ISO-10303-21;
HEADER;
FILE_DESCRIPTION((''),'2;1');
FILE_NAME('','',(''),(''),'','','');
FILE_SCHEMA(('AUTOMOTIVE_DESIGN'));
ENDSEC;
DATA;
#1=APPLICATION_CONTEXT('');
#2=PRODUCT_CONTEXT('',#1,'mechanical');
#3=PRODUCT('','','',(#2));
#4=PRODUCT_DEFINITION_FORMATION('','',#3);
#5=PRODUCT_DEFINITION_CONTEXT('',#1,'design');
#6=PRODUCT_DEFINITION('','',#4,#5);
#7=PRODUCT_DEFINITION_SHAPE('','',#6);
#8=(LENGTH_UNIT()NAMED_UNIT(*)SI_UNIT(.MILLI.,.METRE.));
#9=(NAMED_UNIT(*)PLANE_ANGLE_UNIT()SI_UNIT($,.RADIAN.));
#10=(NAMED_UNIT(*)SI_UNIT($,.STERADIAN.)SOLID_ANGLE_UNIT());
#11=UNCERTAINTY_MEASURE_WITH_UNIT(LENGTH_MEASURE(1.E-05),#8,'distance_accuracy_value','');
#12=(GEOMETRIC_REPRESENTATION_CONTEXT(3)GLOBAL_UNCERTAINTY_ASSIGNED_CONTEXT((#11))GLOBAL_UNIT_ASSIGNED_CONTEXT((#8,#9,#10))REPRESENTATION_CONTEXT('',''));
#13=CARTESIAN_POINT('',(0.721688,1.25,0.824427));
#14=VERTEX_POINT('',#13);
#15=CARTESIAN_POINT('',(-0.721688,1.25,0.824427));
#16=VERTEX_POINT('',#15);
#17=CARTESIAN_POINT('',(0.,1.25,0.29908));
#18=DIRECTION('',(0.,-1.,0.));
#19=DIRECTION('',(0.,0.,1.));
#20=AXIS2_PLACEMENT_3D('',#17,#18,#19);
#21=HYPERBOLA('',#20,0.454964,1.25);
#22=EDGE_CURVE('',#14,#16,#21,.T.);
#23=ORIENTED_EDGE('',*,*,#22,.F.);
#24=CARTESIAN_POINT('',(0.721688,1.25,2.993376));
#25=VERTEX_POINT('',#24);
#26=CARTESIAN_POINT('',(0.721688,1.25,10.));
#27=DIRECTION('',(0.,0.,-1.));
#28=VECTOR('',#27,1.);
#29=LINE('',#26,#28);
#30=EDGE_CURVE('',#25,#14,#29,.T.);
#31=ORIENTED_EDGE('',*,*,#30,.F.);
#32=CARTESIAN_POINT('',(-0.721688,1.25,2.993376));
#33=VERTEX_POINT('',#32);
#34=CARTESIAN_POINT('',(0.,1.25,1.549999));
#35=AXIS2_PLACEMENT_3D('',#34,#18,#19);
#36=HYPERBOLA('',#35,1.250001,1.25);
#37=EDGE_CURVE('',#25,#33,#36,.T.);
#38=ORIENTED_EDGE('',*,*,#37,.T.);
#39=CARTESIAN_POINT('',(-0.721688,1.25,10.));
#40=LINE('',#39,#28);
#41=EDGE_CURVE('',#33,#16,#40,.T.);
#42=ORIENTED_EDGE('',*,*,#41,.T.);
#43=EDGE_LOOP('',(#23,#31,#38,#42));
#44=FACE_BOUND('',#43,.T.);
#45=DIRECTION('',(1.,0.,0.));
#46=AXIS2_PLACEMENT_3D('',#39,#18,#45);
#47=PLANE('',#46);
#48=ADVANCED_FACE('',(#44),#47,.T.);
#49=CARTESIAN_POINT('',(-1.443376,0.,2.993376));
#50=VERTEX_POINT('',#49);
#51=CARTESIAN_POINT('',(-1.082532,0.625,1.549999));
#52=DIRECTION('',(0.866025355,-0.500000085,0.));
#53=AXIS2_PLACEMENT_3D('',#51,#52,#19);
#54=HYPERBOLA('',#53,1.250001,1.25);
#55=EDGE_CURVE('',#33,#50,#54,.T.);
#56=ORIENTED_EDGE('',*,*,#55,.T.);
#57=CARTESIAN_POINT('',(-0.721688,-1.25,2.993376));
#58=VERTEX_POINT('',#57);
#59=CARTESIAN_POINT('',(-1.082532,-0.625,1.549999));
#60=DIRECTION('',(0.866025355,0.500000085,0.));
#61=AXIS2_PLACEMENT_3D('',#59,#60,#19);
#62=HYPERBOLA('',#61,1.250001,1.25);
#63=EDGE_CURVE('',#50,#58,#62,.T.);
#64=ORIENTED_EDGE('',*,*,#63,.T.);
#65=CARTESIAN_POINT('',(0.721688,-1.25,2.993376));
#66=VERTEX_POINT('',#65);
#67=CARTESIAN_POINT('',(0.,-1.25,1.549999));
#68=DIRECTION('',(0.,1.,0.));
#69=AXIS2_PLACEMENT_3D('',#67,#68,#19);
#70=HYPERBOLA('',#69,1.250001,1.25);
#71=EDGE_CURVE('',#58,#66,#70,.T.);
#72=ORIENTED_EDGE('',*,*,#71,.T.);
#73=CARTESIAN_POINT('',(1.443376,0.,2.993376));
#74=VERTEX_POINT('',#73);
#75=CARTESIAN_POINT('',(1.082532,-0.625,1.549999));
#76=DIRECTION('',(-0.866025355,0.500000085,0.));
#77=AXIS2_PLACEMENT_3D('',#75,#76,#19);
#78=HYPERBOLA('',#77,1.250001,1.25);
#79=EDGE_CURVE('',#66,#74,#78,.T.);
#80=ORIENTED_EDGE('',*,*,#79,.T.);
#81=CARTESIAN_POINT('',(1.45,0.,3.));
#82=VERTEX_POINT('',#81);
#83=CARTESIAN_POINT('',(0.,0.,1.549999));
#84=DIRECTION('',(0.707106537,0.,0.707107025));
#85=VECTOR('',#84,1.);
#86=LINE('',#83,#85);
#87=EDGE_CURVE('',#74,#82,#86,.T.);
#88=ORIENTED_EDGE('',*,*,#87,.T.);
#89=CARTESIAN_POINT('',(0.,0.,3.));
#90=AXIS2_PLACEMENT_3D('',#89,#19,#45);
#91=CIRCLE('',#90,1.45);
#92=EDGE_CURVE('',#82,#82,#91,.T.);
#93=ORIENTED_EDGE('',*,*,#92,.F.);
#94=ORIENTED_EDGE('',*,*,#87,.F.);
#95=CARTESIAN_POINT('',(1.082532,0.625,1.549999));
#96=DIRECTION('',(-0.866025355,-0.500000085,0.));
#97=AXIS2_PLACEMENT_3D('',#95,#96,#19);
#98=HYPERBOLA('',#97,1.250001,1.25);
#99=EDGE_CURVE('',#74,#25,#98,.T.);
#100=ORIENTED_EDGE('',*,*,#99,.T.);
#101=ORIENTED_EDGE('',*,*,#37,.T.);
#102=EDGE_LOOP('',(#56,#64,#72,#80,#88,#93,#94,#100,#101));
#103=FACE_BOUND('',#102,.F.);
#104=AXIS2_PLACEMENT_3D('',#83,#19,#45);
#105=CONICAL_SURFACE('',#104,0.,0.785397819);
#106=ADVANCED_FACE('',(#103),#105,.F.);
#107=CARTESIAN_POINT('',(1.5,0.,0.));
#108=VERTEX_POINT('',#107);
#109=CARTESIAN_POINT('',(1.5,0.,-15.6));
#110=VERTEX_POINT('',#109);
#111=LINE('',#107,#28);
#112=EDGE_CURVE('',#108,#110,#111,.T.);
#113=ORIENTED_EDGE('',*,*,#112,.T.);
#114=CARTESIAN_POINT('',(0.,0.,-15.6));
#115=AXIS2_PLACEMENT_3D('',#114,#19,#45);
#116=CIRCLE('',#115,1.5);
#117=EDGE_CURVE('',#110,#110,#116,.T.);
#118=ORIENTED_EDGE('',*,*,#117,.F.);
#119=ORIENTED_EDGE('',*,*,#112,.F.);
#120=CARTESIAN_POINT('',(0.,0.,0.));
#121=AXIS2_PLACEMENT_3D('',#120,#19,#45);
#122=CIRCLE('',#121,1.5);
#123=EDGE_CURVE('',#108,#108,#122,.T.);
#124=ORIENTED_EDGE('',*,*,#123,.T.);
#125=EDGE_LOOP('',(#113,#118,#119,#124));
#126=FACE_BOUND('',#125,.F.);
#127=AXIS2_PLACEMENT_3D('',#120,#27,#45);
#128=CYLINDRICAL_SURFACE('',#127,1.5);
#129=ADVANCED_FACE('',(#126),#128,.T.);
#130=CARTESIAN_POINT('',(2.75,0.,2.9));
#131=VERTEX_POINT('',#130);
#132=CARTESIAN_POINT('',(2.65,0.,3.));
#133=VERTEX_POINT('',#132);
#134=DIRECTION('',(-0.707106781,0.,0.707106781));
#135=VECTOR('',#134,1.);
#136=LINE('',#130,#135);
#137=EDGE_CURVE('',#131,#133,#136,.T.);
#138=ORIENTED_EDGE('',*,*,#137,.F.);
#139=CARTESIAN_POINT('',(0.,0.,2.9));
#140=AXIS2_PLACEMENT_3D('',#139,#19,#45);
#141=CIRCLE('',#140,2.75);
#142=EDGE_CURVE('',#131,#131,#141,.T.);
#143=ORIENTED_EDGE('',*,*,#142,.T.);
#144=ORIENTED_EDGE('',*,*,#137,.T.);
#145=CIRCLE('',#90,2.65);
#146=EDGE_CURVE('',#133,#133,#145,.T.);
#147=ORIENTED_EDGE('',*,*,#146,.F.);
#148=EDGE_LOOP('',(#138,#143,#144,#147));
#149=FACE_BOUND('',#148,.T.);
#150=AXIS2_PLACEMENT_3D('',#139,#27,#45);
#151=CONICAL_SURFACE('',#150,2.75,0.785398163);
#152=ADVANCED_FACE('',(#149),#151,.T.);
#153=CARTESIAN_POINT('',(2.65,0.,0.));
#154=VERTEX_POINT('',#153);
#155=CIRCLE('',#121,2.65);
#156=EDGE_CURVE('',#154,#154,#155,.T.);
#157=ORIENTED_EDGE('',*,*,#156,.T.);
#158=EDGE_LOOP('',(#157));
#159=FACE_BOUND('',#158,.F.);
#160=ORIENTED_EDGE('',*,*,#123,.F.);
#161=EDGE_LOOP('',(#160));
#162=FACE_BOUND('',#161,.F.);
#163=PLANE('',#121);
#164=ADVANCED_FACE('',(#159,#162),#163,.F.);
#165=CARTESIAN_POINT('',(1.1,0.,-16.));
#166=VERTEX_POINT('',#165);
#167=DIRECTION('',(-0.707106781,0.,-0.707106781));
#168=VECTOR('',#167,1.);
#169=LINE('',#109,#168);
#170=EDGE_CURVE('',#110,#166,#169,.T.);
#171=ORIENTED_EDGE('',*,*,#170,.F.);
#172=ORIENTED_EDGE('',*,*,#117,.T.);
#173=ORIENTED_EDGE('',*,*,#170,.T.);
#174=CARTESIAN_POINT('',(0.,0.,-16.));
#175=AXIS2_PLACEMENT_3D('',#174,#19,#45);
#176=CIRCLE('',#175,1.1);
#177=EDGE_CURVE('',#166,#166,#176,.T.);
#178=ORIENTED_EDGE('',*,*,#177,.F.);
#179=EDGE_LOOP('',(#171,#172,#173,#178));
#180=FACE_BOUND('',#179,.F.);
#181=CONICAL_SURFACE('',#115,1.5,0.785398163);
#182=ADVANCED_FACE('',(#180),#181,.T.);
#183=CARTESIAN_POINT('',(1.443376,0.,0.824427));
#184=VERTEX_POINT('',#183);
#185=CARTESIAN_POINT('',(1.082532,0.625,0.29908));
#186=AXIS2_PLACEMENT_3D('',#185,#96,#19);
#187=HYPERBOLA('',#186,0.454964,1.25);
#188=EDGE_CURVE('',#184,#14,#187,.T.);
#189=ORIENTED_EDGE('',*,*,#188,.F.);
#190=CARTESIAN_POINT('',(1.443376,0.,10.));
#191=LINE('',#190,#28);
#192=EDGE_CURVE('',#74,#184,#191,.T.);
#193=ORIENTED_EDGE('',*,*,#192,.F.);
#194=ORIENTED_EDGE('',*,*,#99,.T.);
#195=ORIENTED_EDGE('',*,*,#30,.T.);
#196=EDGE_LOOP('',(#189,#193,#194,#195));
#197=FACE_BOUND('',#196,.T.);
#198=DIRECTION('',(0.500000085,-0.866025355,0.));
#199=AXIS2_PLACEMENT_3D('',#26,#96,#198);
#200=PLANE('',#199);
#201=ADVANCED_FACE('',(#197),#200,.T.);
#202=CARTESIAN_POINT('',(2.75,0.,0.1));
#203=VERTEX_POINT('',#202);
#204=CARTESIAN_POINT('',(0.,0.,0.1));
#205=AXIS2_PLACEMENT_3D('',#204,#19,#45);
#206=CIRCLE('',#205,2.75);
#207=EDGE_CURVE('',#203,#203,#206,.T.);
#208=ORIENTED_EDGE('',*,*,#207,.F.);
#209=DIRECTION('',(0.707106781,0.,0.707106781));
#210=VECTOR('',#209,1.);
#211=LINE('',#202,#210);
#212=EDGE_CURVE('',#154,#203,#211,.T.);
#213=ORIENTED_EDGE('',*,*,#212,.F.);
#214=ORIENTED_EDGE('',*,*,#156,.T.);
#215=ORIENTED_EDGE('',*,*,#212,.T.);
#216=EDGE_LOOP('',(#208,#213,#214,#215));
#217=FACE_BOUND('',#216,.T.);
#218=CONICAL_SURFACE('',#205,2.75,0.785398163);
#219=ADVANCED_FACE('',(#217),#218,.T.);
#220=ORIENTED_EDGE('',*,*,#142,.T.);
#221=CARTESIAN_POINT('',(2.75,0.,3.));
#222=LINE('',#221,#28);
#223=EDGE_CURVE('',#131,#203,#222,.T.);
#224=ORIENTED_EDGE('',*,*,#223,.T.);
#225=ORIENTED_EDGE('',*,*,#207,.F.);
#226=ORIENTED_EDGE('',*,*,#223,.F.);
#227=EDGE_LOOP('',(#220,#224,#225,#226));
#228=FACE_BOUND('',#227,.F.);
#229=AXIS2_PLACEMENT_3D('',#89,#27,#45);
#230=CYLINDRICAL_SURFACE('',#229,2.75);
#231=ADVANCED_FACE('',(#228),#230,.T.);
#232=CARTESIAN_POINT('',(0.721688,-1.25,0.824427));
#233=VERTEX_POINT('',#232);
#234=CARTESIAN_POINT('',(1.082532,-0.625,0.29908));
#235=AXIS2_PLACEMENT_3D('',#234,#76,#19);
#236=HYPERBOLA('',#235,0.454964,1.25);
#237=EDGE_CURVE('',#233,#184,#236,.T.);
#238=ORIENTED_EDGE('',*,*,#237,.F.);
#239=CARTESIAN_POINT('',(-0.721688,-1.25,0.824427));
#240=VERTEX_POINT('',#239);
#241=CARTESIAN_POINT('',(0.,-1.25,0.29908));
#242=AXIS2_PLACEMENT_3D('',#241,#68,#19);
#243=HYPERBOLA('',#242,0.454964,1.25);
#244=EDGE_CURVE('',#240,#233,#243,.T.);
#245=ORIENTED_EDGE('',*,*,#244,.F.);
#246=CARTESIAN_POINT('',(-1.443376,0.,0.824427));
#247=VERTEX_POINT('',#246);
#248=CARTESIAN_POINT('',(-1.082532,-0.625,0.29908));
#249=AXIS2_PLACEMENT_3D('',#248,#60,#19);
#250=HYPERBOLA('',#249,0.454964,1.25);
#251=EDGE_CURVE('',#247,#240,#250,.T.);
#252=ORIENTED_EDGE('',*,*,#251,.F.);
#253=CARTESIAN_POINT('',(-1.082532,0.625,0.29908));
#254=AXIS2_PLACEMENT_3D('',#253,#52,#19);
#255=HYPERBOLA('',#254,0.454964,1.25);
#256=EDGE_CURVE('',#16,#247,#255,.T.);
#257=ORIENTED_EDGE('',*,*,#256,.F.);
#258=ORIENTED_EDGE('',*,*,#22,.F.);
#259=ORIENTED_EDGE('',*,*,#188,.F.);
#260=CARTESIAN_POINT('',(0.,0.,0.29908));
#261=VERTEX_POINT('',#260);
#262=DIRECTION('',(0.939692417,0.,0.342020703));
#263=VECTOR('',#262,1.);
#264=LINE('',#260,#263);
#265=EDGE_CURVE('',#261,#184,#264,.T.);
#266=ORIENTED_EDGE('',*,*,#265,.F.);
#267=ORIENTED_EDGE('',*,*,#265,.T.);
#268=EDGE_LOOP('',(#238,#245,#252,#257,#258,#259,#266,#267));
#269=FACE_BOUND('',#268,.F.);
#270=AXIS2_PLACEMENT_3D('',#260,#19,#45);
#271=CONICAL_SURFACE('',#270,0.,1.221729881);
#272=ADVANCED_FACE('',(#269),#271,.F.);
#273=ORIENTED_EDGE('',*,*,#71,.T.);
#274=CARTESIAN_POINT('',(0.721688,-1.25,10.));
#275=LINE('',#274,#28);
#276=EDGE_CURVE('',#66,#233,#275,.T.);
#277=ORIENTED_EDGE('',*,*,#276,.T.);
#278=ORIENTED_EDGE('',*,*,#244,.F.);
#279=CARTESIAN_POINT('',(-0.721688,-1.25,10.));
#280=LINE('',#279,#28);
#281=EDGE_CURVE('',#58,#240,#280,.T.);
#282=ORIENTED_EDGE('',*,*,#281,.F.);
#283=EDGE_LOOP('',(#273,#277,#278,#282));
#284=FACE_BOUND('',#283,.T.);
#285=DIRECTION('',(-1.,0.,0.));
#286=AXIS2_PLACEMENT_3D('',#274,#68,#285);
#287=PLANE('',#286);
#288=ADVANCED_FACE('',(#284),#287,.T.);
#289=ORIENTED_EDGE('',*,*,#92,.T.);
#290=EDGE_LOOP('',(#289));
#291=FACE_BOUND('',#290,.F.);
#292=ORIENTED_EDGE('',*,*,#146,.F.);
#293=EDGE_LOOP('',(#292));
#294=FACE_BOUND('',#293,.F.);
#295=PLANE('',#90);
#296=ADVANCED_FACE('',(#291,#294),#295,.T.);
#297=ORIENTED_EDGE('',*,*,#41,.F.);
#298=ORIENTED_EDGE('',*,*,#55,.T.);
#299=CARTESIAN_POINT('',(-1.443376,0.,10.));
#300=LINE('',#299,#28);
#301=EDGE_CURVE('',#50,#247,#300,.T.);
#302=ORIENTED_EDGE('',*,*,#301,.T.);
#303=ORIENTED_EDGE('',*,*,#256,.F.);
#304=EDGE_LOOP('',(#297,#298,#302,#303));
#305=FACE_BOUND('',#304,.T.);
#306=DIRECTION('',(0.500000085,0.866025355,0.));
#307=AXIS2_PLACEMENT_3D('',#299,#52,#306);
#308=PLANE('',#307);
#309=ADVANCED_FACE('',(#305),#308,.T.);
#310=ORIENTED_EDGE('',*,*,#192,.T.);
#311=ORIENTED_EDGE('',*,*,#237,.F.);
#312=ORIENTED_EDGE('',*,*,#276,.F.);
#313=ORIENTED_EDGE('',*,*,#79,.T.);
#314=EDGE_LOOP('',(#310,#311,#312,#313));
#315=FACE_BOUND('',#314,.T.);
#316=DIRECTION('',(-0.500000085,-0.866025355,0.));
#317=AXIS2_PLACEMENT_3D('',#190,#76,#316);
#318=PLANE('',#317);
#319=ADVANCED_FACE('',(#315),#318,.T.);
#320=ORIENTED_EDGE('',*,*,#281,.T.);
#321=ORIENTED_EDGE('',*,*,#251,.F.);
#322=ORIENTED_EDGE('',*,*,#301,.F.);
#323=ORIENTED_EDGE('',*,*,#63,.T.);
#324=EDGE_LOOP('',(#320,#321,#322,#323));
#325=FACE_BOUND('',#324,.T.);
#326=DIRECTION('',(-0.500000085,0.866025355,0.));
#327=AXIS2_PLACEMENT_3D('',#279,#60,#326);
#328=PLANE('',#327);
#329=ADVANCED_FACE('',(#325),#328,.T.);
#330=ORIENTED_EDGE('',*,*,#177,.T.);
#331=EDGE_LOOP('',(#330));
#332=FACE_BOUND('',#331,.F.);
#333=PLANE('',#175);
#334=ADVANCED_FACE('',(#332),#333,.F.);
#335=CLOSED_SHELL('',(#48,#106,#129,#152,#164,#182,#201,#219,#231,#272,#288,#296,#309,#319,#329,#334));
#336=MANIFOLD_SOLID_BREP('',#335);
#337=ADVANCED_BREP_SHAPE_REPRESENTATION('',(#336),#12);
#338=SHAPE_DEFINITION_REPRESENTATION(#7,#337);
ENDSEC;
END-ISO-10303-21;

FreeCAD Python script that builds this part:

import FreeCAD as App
import Part
import Sketcher

V = App.Vector
Q = App.Units.Quantity


def edges_at(feature, points):
    """Names of the edges that pass closest to the given points."""
    edges = feature.Shape.Edges
    near = lambda p: min(range(len(edges)), key=lambda i: edges[i].distToShape(Part.Vertex(*p))[0])
    return sorted({f"Edge{near(p) + 1}" for p in points})

doc = App.newDocument("Part")
body = doc.addObject("PartDesign::Body", "Body")

# Sketch on XZ plane
sketch1 = body.newObject("Sketcher::SketchObject", "Sketch")
sketch1.AttachmentSupport = (doc.getObject("XZ_Plane"), [""])
sketch1.MapMode = "FlatFace"
sketch1.addGeometry(Part.LineSegment(V(0, 0.3, 0), V(2.8, 1.3, 0)), False)
sketch1.addGeometry(Part.LineSegment(V(2.8, 1.3, 0), V(2.8, 10, 0)), False)
sketch1.addGeometry(Part.LineSegment(V(2.8, 10, 0), V(0, 10, 0)), False)
sketch1.addGeometry(Part.LineSegment(V(0, 10, 0), V(0, 0.3, 0)), False)
sketch1.addConstraint(Sketcher.Constraint("Coincident", 0, 2, 1, 1))
sketch1.addConstraint(Sketcher.Constraint("Coincident", 1, 2, 2, 1))
sketch1.addConstraint(Sketcher.Constraint("Coincident", 2, 2, 3, 1))
sketch1.addConstraint(Sketcher.Constraint("Coincident", 3, 2, 0, 1))
sketch1.addConstraint(Sketcher.Constraint("Vertical", 1))
sketch1.addConstraint(Sketcher.Constraint("Horizontal", 2))
sketch1.addConstraint(Sketcher.Constraint("Vertical", 3))
sketch1.addConstraint(Sketcher.Constraint("PointOnObject", 2, 2, -2))
sketch1.addConstraint(Sketcher.Constraint("DistanceY", 1, 1, 1, 2, Q("8.7 mm")))
sketch1.addConstraint(Sketcher.Constraint("DistanceY", -1, 1, 1, 2, Q("10 mm")))
sketch1.addConstraint(Sketcher.Constraint("DistanceX", 2, 2, 2, 1, Q("2.75 mm")))
sketch1.addConstraint(Sketcher.Constraint("DistanceY", 3, 2, 3, 1, Q("9.70092 mm")))
revolution = body.newObject("PartDesign::Revolution", "Revolution")
revolution.Profile = sketch1
revolution.ReferenceAxis = (sketch1, ["V_Axis"])
revolution.Angle = 360

# Sketch on XY plane
sketch2 = body.newObject("Sketcher::SketchObject", "Sketch001")
sketch2.AttachmentSupport = (doc.getObject("XY_Plane"), [""])
sketch2.MapMode = "FlatFace"
sketch2.AttachmentOffset = App.Placement(V(0, 0, 10), App.Rotation())
sketch2.addGeometry(Part.Circle(V(0, 0, 0), V(0, 0, 1), 3.8), False)
sketch2.addGeometry(Part.LineSegment(V(1.4, 0, 0), V(0.7, -1.2, 0)), False)
sketch2.addGeometry(Part.LineSegment(V(0.7, -1.2, 0), V(-0.7, -1.2, 0)), False)
sketch2.addGeometry(Part.LineSegment(V(-0.7, -1.2, 0), V(-1.4, 0, 0)), False)
sketch2.addGeometry(Part.LineSegment(V(-1.4, 0, 0), V(-0.7, 1.2, 0)), False)
sketch2.addGeometry(Part.LineSegment(V(-0.7, 1.2, 0), V(0.7, 1.2, 0)), False)
sketch2.addGeometry(Part.LineSegment(V(0.7, 1.2, 0), V(1.4, 0, 0)), False)
sketch2.addConstraint(Sketcher.Constraint("Coincident", 1, 2, 2, 1))
sketch2.addConstraint(Sketcher.Constraint("Coincident", 2, 2, 3, 1))
sketch2.addConstraint(Sketcher.Constraint("Coincident", 3, 2, 4, 1))
sketch2.addConstraint(Sketcher.Constraint("Coincident", 4, 2, 5, 1))
sketch2.addConstraint(Sketcher.Constraint("Coincident", 5, 2, 6, 1))
sketch2.addConstraint(Sketcher.Constraint("Coincident", 6, 2, 1, 1))
sketch2.addConstraint(Sketcher.Constraint("Horizontal", 2))
sketch2.addConstraint(Sketcher.Constraint("Horizontal", 5))
sketch2.addConstraint(Sketcher.Constraint("Coincident", 0, 3, -1, 1))
sketch2.addConstraint(Sketcher.Constraint("Symmetric", 1, 2, 4, 2, -1, 1))
sketch2.addConstraint(Sketcher.Constraint("Symmetric", 3, 2, 6, 2, -1, 1))
sketch2.addConstraint(Sketcher.Constraint("PointOnObject", 3, 2, -1))
sketch2.addConstraint(Sketcher.Constraint("Parallel", 3, 6))
sketch2.addConstraint(Sketcher.Constraint("Vertical", 2, 2, 4, 2))
sketch2.addConstraint(Sketcher.Constraint("Diameter", 0, Q("7.5 mm")))
sketch2.addConstraint(Sketcher.Constraint("Angle", 1, Q("-120.000006 deg")))
sketch2.addConstraint(Sketcher.Constraint("DistanceY", 2, 2, 4, 2, Q("2.5 mm")))
sketch2.addConstraint(Sketcher.Constraint("DistanceX", 2, 2, 2, 1, Q("1.443376 mm")))
pocket1 = body.newObject("PartDesign::Pocket", "Pocket")
pocket1.Profile = sketch2
pocket1.Type = "ThroughAll"
body2 = doc.addObject("PartDesign::Body", "Body001")

# Sketch on XZ plane
sketch3 = body2.newObject("Sketcher::SketchObject", "Sketch002")
sketch3.AttachmentSupport = (doc.getObject("XZ_Plane001"), [""])
sketch3.MapMode = "FlatFace"
sketch3.addGeometry(Part.LineSegment(V(2.8, 3, 0), V(1.4, 3, 0)), False)
sketch3.addGeometry(Part.LineSegment(V(1.4, 3, 0), V(0, 1.5, 0)), False)
sketch3.addGeometry(Part.LineSegment(V(0, 1.5, 0), V(0, -16, 0)), False)
sketch3.addGeometry(Part.LineSegment(V(0, -16, 0), V(1.5, -16, 0)), False)
sketch3.addGeometry(Part.LineSegment(V(1.5, -16, 0), V(1.5, 0, 0)), False)
sketch3.addGeometry(Part.LineSegment(V(1.5, 0, 0), V(2.8, 0, 0)), False)
sketch3.addGeometry(Part.LineSegment(V(2.8, 0, 0), V(2.8, 3, 0)), False)
sketch3.addConstraint(Sketcher.Constraint("Coincident", 0, 2, 1, 1))
sketch3.addConstraint(Sketcher.Constraint("Coincident", 1, 2, 2, 1))
sketch3.addConstraint(Sketcher.Constraint("Coincident", 2, 2, 3, 1))
sketch3.addConstraint(Sketcher.Constraint("Coincident", 3, 2, 4, 1))
sketch3.addConstraint(Sketcher.Constraint("Coincident", 4, 2, 5, 1))
sketch3.addConstraint(Sketcher.Constraint("Coincident", 5, 2, 6, 1))
sketch3.addConstraint(Sketcher.Constraint("Coincident", 6, 2, 0, 1))
sketch3.addConstraint(Sketcher.Constraint("Horizontal", 0))
sketch3.addConstraint(Sketcher.Constraint("Vertical", 2))
sketch3.addConstraint(Sketcher.Constraint("Horizontal", 3))
sketch3.addConstraint(Sketcher.Constraint("Vertical", 4))
sketch3.addConstraint(Sketcher.Constraint("Horizontal", 5))
sketch3.addConstraint(Sketcher.Constraint("Vertical", 6))
sketch3.addConstraint(Sketcher.Constraint("PointOnObject", 1, 2, -2))
sketch3.addConstraint(Sketcher.Constraint("PointOnObject", 4, 2, -1))
sketch3.addConstraint(Sketcher.Constraint("DistanceY", 4, 1, 4, 2, Q("16 mm")))
sketch3.addConstraint(Sketcher.Constraint("DistanceY", 6, 1, 6, 2, Q("3 mm")))
sketch3.addConstraint(Sketcher.Constraint("Angle", 1, Q("-134.99998 deg")))
sketch3.addConstraint(Sketcher.Constraint("DistanceX", 0, 2, 0, 1, Q("1.3 mm")))
sketch3.addConstraint(Sketcher.Constraint("DistanceX", 3, 1, 3, 2, Q("1.5 mm")))
sketch3.addConstraint(Sketcher.Constraint("DistanceX", 5, 1, 5, 2, Q("1.25 mm")))
revolution2 = body2.newObject("PartDesign::Revolution", "Revolution001")
revolution2.Profile = sketch3
revolution2.ReferenceAxis = (sketch3, ["V_Axis"])
revolution2.Angle = 360
doc.recompute()

boolean = body2.newObject("PartDesign::Boolean", "Boolean")
boolean.Type = "Cut"
boolean.addObjects([body])
doc.recompute()

chamfer = body2.newObject("PartDesign::Chamfer", "Chamfer")
chamfer.Base = (boolean, edges_at(boolean, [(-1.5, 0, -16)]))
chamfer.Size = 0.4
doc.recompute()

chamfer2 = body2.newObject("PartDesign::Chamfer", "Chamfer001")
chamfer2.Base = (chamfer, edges_at(chamfer, [(-2.75, 0, 0), (-2.75, 0, 3)]))
chamfer2.Size = 0.1

doc.recompute()
